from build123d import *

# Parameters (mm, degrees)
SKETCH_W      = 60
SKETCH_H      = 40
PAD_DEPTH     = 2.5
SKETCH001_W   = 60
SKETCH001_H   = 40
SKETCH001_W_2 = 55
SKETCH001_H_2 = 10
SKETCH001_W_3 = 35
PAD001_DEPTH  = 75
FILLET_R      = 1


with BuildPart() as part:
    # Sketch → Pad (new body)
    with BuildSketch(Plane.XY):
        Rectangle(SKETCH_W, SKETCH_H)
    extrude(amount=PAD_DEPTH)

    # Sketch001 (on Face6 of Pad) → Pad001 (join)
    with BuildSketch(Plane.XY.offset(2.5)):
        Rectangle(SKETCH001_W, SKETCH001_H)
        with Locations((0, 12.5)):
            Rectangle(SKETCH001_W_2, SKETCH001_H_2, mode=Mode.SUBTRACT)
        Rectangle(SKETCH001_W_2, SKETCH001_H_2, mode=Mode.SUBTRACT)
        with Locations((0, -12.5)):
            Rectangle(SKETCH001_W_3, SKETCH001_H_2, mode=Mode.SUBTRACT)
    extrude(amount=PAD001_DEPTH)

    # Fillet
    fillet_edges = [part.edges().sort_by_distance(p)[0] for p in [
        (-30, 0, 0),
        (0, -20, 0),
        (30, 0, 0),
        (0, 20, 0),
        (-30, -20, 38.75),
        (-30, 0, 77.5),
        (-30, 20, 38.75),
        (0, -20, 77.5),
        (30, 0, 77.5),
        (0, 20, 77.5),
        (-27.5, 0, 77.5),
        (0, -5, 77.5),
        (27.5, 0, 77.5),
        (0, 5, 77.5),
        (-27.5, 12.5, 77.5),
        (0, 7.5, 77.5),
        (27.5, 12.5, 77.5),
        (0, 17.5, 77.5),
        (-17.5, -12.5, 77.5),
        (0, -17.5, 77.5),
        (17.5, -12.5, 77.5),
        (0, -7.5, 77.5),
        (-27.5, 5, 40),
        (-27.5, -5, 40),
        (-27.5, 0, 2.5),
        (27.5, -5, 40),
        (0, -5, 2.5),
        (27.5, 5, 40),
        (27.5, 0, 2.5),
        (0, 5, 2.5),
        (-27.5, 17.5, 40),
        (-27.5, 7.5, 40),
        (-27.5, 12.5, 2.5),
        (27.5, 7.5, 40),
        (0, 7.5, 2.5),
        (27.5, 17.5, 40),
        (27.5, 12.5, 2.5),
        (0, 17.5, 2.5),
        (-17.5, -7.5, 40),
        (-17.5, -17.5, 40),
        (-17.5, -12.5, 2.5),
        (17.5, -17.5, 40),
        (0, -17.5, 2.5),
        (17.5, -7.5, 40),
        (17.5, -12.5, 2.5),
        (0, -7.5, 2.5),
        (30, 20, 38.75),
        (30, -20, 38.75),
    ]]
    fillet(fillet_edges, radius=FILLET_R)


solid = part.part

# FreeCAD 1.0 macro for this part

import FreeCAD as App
import Part
import Sketcher
from FreeCAD import Vector


def add_polygon(sketch, points):
    """Adds a closed chain of lines whose ends are joined by coincident constraints."""
    first, n = sketch.GeometryCount, len(points)
    for a, b in zip(points, points[1:] + points[:1]):
        sketch.addGeometry(Part.LineSegment(App.Vector(*a, 0), App.Vector(*b, 0)), False)
    for i in range(n):
        sketch.addConstraint(Sketcher.Constraint("Coincident", first + i, 2, first + (i + 1) % n, 1))

doc = App.newDocument("Part")
body = doc.addObject("PartDesign::Body", "Body")

sketch1 = body.newObject("Sketcher::SketchObject", "Sketch")
sketch1.AttachmentSupport = (doc.getObject("XY_Plane"), [""])
sketch1.MapMode = "FlatFace"
add_polygon(sketch1, [(-30, 20), (-30, -20), (30, -20), (30, 20)])
sketch1.addConstraint([
    Sketcher.Constraint("Vertical", 0),
    Sketcher.Constraint("Horizontal", 1),
    Sketcher.Constraint("Vertical", 2),
    Sketcher.Constraint("Horizontal", 3),
    Sketcher.Constraint("Symmetric", 0, 2, 2, 2, -1, 1),
    Sketcher.Constraint("DistanceX", 1, 1, 1, 2, 60.0),
    Sketcher.Constraint("DistanceY", 0, 2, 0, 1, 40.0),
])
pad1 = body.newObject("PartDesign::Pad", "Pad")
pad1.Profile = sketch1
pad1.Length = 2.5

sketch2 = body.newObject("Sketcher::SketchObject", "Sketch001")
sketch2.AttachmentSupport = (doc.getObject("XY_Plane"), [""])
sketch2.MapMode = "FlatFace"
sketch2.AttachmentOffset = App.Placement(Vector(0, 0, 2.5), App.Rotation())
add_polygon(sketch2, [(-30, 20), (-30, -20), (30, -20), (30, 20)])
add_polygon(sketch2, [(18, -18), (-18, -18), (-18, -8), (18, -8)])
add_polygon(sketch2, [(28, -5), (-28, -5), (-28, 5), (28, 5)])
add_polygon(sketch2, [(28, 8), (-28, 8), (-28, 18), (28, 18)])
sketch2.addConstraint([
    Sketcher.Constraint("Vertical", 0),
    Sketcher.Constraint("Horizontal", 1),
    Sketcher.Constraint("Vertical", 2),
    Sketcher.Constraint("Horizontal", 3),
    Sketcher.Constraint("Horizontal", 4),
    Sketcher.Constraint("Vertical", 5),
    Sketcher.Constraint("Horizontal", 6),
    Sketcher.Constraint("Vertical", 7),
    Sketcher.Constraint("Horizontal", 8),
    Sketcher.Constraint("Vertical", 9),
    Sketcher.Constraint("Horizontal", 10),
    Sketcher.Constraint("Vertical", 11),
    Sketcher.Constraint("Horizontal", 12),
    Sketcher.Constraint("Vertical", 13),
    Sketcher.Constraint("Horizontal", 14),
    Sketcher.Constraint("Vertical", 15),
    Sketcher.Constraint("Symmetric", 0, 2, 2, 2, -1, 1),
    Sketcher.Constraint("Symmetric", 8, 2, 10, 2, -1, 1),
    Sketcher.Constraint("Vertical", 9, 2, 12, 2),
    Sketcher.Constraint("Vertical", 11, 2, 14, 2),
    Sketcher.Constraint("Equal", 7, 9),
    Sketcher.Constraint("Equal", 11, 13),
    Sketcher.Constraint("DistanceX", 1, 1, 1, 2, 60.0),
    Sketcher.Constraint("DistanceX", 4, 2, 4, 1, 35.0),
    Sketcher.Constraint("DistanceX", 8, 2, 8, 1, 55.0),
    Sketcher.Constraint("DistanceY", 0, 2, 0, 1, 40.0),
    Sketcher.Constraint("DistanceY", 5, 1, 5, 2, 10.0),
    Sketcher.Constraint("DistanceX", 8, 2, 5, 2, 10.0),
    Sketcher.Constraint("DistanceY", 5, 2, 12, 2, 15.0),
    Sketcher.Constraint("DistanceY", 4, 2, -1, 1, 17.5),
])
pad2 = body.newObject("PartDesign::Pad", "Pad001")
pad2.Profile = sketch2
pad2.Length = 75
doc.recompute()

fillet = body.newObject("PartDesign::Fillet", "Fillet")
fillet.Base = (pad2, ["Edge1"])
fillet.UseAllEdges = True
fillet.Radius = 1

doc.recompute()
